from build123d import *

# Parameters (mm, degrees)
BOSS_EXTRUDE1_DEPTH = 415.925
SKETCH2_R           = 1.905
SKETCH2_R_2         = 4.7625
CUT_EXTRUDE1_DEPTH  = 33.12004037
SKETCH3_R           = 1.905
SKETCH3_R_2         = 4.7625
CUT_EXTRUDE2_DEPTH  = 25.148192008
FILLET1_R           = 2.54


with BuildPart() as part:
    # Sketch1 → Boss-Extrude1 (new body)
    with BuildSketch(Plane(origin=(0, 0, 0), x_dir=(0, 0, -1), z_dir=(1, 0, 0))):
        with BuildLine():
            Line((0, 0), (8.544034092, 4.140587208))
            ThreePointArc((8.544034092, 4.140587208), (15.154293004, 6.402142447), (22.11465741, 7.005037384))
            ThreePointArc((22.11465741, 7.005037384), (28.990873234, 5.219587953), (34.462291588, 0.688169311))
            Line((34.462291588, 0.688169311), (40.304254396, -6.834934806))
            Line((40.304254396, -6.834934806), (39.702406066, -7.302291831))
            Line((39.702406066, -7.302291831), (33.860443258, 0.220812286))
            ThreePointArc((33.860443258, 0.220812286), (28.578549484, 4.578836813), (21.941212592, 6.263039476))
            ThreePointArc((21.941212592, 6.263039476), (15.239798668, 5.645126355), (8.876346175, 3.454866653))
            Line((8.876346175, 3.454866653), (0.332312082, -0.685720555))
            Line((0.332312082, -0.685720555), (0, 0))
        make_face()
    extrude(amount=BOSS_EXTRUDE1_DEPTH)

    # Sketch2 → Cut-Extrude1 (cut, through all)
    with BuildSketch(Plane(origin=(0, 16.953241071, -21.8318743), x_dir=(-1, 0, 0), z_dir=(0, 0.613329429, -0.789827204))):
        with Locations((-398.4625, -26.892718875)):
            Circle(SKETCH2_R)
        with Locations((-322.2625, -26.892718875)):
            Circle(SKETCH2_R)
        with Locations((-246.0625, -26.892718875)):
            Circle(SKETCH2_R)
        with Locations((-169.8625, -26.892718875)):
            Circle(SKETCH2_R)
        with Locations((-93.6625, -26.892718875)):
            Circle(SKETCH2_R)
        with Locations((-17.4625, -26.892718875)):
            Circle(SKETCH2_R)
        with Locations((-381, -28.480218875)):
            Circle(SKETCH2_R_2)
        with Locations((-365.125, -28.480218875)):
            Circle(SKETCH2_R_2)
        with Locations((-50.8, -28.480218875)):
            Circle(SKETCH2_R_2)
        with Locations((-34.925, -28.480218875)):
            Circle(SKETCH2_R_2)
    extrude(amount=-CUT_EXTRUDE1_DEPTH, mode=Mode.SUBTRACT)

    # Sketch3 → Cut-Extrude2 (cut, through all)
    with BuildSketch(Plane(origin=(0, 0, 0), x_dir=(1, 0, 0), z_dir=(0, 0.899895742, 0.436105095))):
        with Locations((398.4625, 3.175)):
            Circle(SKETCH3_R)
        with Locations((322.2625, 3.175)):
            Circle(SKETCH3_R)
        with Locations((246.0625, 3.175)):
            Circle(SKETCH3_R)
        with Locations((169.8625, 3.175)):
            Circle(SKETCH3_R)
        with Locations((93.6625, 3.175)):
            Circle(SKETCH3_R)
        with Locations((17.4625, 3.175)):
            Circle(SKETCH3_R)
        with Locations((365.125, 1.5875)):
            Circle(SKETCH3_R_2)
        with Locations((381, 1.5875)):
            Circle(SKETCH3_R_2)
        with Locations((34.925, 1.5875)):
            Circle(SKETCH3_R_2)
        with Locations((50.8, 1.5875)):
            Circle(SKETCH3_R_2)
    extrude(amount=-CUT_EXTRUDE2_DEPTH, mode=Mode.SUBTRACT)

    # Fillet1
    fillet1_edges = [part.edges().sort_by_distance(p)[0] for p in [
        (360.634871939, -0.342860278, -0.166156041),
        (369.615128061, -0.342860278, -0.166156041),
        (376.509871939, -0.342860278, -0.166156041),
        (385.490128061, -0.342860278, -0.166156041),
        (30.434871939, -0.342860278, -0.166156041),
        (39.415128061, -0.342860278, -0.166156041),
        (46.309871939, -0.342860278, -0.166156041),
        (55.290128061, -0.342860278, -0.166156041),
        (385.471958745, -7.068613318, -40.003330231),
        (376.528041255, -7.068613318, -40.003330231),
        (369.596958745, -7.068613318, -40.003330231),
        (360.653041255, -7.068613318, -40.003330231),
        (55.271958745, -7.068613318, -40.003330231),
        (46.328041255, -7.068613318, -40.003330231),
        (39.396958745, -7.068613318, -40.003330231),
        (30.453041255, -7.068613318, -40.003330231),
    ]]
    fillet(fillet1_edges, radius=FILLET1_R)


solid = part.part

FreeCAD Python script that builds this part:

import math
import FreeCAD as App
import Part
import Sketcher
from FreeCAD import Vector
Q = App.Units.Quantity


def edges_at(feature, points):
    """Names of the edges that pass closest to the given points."""
    edges = feature.Shape.Edges
    near = lambda p: min(range(len(edges)), key=lambda i: edges[i].distToShape(Part.Vertex(*p))[0])
    return sorted({f"Edge{near(p) + 1}" for p in points})

doc = App.newDocument("Part")
body = doc.addObject("PartDesign::Body", "Body")

sketch1 = body.newObject("Sketcher::SketchObject", "Sketch")
sketch1.AttachmentSupport = (doc.getObject("YZ_Plane"), [""])
sketch1.MapMode = "FlatFace"
sketch1.addGeometry(Part.LineSegment(Vector(4.140587, -8.544034, 0), Vector(0, 0, 0)), False)
sketch1.addGeometry(Part.LineSegment(Vector(0, 0, 0), Vector(-0.685721, -0.332312, 0)), False)
sketch1.addGeometry(Part.LineSegment(Vector(-0.685721, -0.332312, 0), Vector(3.454867, -8.876346, 0)), False)
sketch1.addGeometry(Part.ArcOfCircle(Part.Circle(Vector(-21.88745, -21.157673, 0), Vector(0, 0, 1), 28.161392), math.radians(-1.594358), math.radians(25.855634)), False)
sketch1.addGeometry(Part.ArcOfCircle(Part.Circle(Vector(-9.372858, -21.506003, 0), Vector(0, 0, 1), 15.641953), math.radians(-52.169366), math.radians(-1.594358)), False)
sketch1.addGeometry(Part.LineSegment(Vector(0.220812, -33.860443, 0), Vector(-7.302292, -39.702406, 0)), False)
sketch1.addGeometry(Part.LineSegment(Vector(-7.302292, -39.702406, 0), Vector(-6.834935, -40.304254, 0)), False)
sketch1.addGeometry(Part.LineSegment(Vector(-6.834935, -40.304254, 0), Vector(0.688169, -34.462292, 0)), False)
sketch1.addGeometry(Part.ArcOfCircle(Part.Circle(Vector(-9.34762, -21.538504, 0), Vector(0, 0, 1), 16.362804), math.radians(-52.169366), math.radians(-2.017869)), False)
sketch1.addGeometry(Part.ArcOfCircle(Part.Circle(Vector(-21.770138, -21.100821, 0), Vector(0, 0, 1), 28.79303), math.radians(-2.017869), math.radians(25.855634)), False)
sketch1.addConstraint(Sketcher.Constraint("Coincident", 0, 2, 1, 1))
sketch1.addConstraint(Sketcher.Constraint("Coincident", 1, 2, 2, 1))
sketch1.addConstraint(Sketcher.Constraint("Tangent", 2, 2, 3, 2))
sketch1.addConstraint(Sketcher.Constraint("Tangent", 3, 1, 4, 2))
sketch1.addConstraint(Sketcher.Constraint("Tangent", 4, 1, 5, 1))
sketch1.addConstraint(Sketcher.Constraint("Coincident", 5, 2, 6, 1))
sketch1.addConstraint(Sketcher.Constraint("Coincident", 6, 2, 7, 1))
sketch1.addConstraint(Sketcher.Constraint("Tangent", 7, 2, 8, 1))
sketch1.addConstraint(Sketcher.Constraint("Tangent", 8, 2, 9, 1))
sketch1.addConstraint(Sketcher.Constraint("Tangent", 9, 2, 0, 1))
sketch1.addConstraint(Sketcher.Constraint("Coincident", 0, 2, -1, 1))
sketch1.addConstraint(Sketcher.Constraint("Perpendicular", 0, 1))
sketch1.addConstraint(Sketcher.Constraint("Perpendicular", 1, 2))
sketch1.addConstraint(Sketcher.Constraint("Perpendicular", 5, 6))
sketch1.addConstraint(Sketcher.Constraint("Perpendicular", 6, 7))
sketch1.addConstraint(Sketcher.Constraint("Equal", 0, 2))
sketch1.addConstraint(Sketcher.Constraint("Equal", 1, 6))
sketch1.addConstraint(Sketcher.Constraint("Equal", 5, 7))
sketch1.addConstraint(Sketcher.Constraint("Distance", 1, Q("0.03 in")))
sketch1.addConstraint(Sketcher.Constraint("Distance", 5, Q("0.375 in")))
sketch1.addConstraint(Sketcher.Constraint("Radius", 3, 28.161392))
sketch1.addConstraint(Sketcher.Constraint("Radius", 9, 28.79303))
sketch1.addConstraint(Sketcher.Constraint("Radius", 4, 15.641953))
sketch1.addConstraint(Sketcher.Constraint("Radius", 8, 16.362804))
sketch1.addConstraint(Sketcher.Constraint("DistanceX", 5, 2, 6, 2, Q("0.0183999 in")))
sketch1.addConstraint(Sketcher.Constraint("DistanceX", 8, 3, 1, 2, 8.661899))
sketch1.addConstraint(Sketcher.Constraint("DistanceY", 3, 1, 1, 2, 21.608901))
pad1 = body.newObject("PartDesign::Pad", "Pad")
pad1.Profile = sketch1
pad1.Length = Q("16.375 in")

sketch2 = body.newObject("Sketcher::SketchObject", "Sketch001")
sketch2.Placement = App.Placement(Vector(0, 16.953241, -21.831874), App.Rotation(Vector(-1, 0, 0), Vector(0, 0.789827204, 0.613329429), Vector(0, 0.613329429, -0.789827204), "ZXY"))
sketch2.addGeometry(Part.Circle(Vector(-398.4625, -26.892719, 0), Vector(0, 0, 1), 1.905), False)
sketch2.addGeometry(Part.Circle(Vector(-322.2625, -26.892719, 0), Vector(0, 0, 1), 1.905), False)
sketch2.addGeometry(Part.Circle(Vector(-246.0625, -26.892719, 0), Vector(0, 0, 1), 1.905), False)
sketch2.addGeometry(Part.Circle(Vector(-169.8625, -26.892719, 0), Vector(0, 0, 1), 1.905), False)
sketch2.addGeometry(Part.Circle(Vector(-93.6625, -26.892719, 0), Vector(0, 0, 1), 1.905), False)
sketch2.addGeometry(Part.Circle(Vector(-17.4625, -26.892719, 0), Vector(0, 0, 1), 1.905), False)
sketch2.addGeometry(Part.Circle(Vector(-381, -28.480219, 0), Vector(0, 0, 1), 4.7625), False)
sketch2.addGeometry(Part.Circle(Vector(-365.125, -28.480219, 0), Vector(0, 0, 1), 4.7625), False)
sketch2.addGeometry(Part.Circle(Vector(-50.8, -28.480219, 0), Vector(0, 0, 1), 4.7625), False)
sketch2.addGeometry(Part.Circle(Vector(-34.925, -28.480219, 0), Vector(0, 0, 1), 4.7625), False)
sketch2.addConstraint(Sketcher.Constraint("Equal", 0, 1))
sketch2.addConstraint(Sketcher.Constraint("Equal", 1, 2))
sketch2.addConstraint(Sketcher.Constraint("Equal", 2, 3))
sketch2.addConstraint(Sketcher.Constraint("Equal", 3, 4))
sketch2.addConstraint(Sketcher.Constraint("Equal", 4, 5))
sketch2.addConstraint(Sketcher.Constraint("Equal", 6, 7))
sketch2.addConstraint(Sketcher.Constraint("Equal", 7, 8))
sketch2.addConstraint(Sketcher.Constraint("Equal", 8, 9))
sketch2.addConstraint(Sketcher.Constraint("Horizontal", 0, 3, 1, 3))
sketch2.addConstraint(Sketcher.Constraint("Horizontal", 1, 3, 2, 3))
sketch2.addConstraint(Sketcher.Constraint("Horizontal", 2, 3, 3, 3))
sketch2.addConstraint(Sketcher.Constraint("Horizontal", 3, 3, 4, 3))
sketch2.addConstraint(Sketcher.Constraint("Horizontal", 4, 3, 5, 3))
sketch2.addConstraint(Sketcher.Constraint("Horizontal", 6, 3, 7, 3))
sketch2.addConstraint(Sketcher.Constraint("Horizontal", 7, 3, 8, 3))
sketch2.addConstraint(Sketcher.Constraint("Horizontal", 8, 3, 9, 3))
sketch2.addConstraint(Sketcher.Constraint("Diameter", 0, Q("0.15 in")))
sketch2.addConstraint(Sketcher.Constraint("Diameter", 6, Q("0.375 in")))
sketch2.addConstraint(Sketcher.Constraint("DistanceX", 6, 3, -1, 1, Q("15 in")))
sketch2.addConstraint(Sketcher.Constraint("DistanceX", 8, 3, -1, 1, Q("2 in")))
sketch2.addConstraint(Sketcher.Constraint("DistanceX", 0, 3, 1, 3, Q("3 in")))
sketch2.addConstraint(Sketcher.Constraint("DistanceX", 1, 3, 2, 3, Q("3 in")))
sketch2.addConstraint(Sketcher.Constraint("DistanceX", 2, 3, 3, 3, Q("3 in")))
sketch2.addConstraint(Sketcher.Constraint("DistanceX", 3, 3, 4, 3, Q("3 in")))
sketch2.addConstraint(Sketcher.Constraint("DistanceX", 4, 3, 5, 3, Q("3 in")))
sketch2.addConstraint(Sketcher.Constraint("DistanceX", 0, 3, -1, 1, Q("15.6875 in")))
sketch2.addConstraint(Sketcher.Constraint("DistanceX", 7, 3, -1, 1, Q("14.375 in")))
sketch2.addConstraint(Sketcher.Constraint("DistanceX", 9, 3, -1, 1, Q("1.375 in")))
sketch2.addConstraint(Sketcher.Constraint("DistanceY", 6, 3, 0, 3, Q("0.0625 in")))
sketch2.addConstraint(Sketcher.Constraint("DistanceY", 0, 3, -1, 1, 26.892719))
pocket1 = body.newObject("PartDesign::Pocket", "Pocket")
pocket1.Profile = sketch2
pocket1.Type = "ThroughAll"

sketch3 = body.newObject("Sketcher::SketchObject", "Sketch002")
sketch3.Placement = App.Placement(Vector(0, 0, 0), App.Rotation(Vector(1, 0, 0), Vector(0, 0.436105095, -0.899895742), Vector(0, 0.899895742, 0.436105095), "ZXY"))
sketch3.addGeometry(Part.Circle(Vector(398.4625, 3.175, 0), Vector(0, 0, 1), 1.905), False)
sketch3.addGeometry(Part.Circle(Vector(322.2625, 3.175, 0), Vector(0, 0, 1), 1.905), False)
sketch3.addGeometry(Part.Circle(Vector(246.0625, 3.175, 0), Vector(0, 0, 1), 1.905), False)
sketch3.addGeometry(Part.Circle(Vector(169.8625, 3.175, 0), Vector(0, 0, 1), 1.905), False)
sketch3.addGeometry(Part.Circle(Vector(93.6625, 3.175, 0), Vector(0, 0, 1), 1.905), False)
sketch3.addGeometry(Part.Circle(Vector(17.4625, 3.175, 0), Vector(0, 0, 1), 1.905), False)
sketch3.addGeometry(Part.Circle(Vector(365.125, 1.5875, 0), Vector(0, 0, 1), 4.7625), False)
sketch3.addGeometry(Part.Circle(Vector(381, 1.5875, 0), Vector(0, 0, 1), 4.7625), False)
sketch3.addGeometry(Part.Circle(Vector(34.925, 1.5875, 0), Vector(0, 0, 1), 4.7625), False)
sketch3.addGeometry(Part.Circle(Vector(50.8, 1.5875, 0), Vector(0, 0, 1), 4.7625), False)
sketch3.addConstraint(Sketcher.Constraint("Equal", 0, 1))
sketch3.addConstraint(Sketcher.Constraint("Equal", 1, 2))
sketch3.addConstraint(Sketcher.Constraint("Equal", 2, 3))
sketch3.addConstraint(Sketcher.Constraint("Equal", 3, 4))
sketch3.addConstraint(Sketcher.Constraint("Equal", 4, 5))
sketch3.addConstraint(Sketcher.Constraint("Equal", 6, 7))
sketch3.addConstraint(Sketcher.Constraint("Equal", 7, 8))
sketch3.addConstraint(Sketcher.Constraint("Equal", 8, 9))
sketch3.addConstraint(Sketcher.Constraint("Horizontal", 0, 3, 1, 3))
sketch3.addConstraint(Sketcher.Constraint("Horizontal", 1, 3, 2, 3))
sketch3.addConstraint(Sketcher.Constraint("Horizontal", 2, 3, 3, 3))
sketch3.addConstraint(Sketcher.Constraint("Horizontal", 3, 3, 4, 3))
sketch3.addConstraint(Sketcher.Constraint("Horizontal", 4, 3, 5, 3))
sketch3.addConstraint(Sketcher.Constraint("Horizontal", 6, 3, 7, 3))
sketch3.addConstraint(Sketcher.Constraint("Horizontal", 7, 3, 8, 3))
sketch3.addConstraint(Sketcher.Constraint("Horizontal", 8, 3, 9, 3))
sketch3.addConstraint(Sketcher.Constraint("Diameter", 0, Q("0.15 in")))
sketch3.addConstraint(Sketcher.Constraint("Diameter", 6, Q("0.375 in")))
sketch3.addConstraint(Sketcher.Constraint("DistanceX", -1, 1, 7, 3, Q("15 in")))
sketch3.addConstraint(Sketcher.Constraint("DistanceX", -1, 1, 9, 3, Q("2 in")))
sketch3.addConstraint(Sketcher.Constraint("DistanceX", 1, 3, 0, 3, Q("3 in")))
sketch3.addConstraint(Sketcher.Constraint("DistanceX", 2, 3, 1, 3, Q("3 in")))
sketch3.addConstraint(Sketcher.Constraint("DistanceX", 3, 3, 2, 3, Q("3 in")))
sketch3.addConstraint(Sketcher.Constraint("DistanceX", 4, 3, 3, 3, Q("3 in")))
sketch3.addConstraint(Sketcher.Constraint("DistanceX", 5, 3, 4, 3, Q("3 in")))
sketch3.addConstraint(Sketcher.Constraint("DistanceX", -1, 1, 0, 3, Q("15.6875 in")))
sketch3.addConstraint(Sketcher.Constraint("DistanceY", -1, 1, 0, 3, Q("0.125 in")))
sketch3.addConstraint(Sketcher.Constraint("DistanceX", -1, 1, 6, 3, Q("14.375 in")))
sketch3.addConstraint(Sketcher.Constraint("DistanceY", -1, 1, 6, 3, Q("0.0625 in")))
sketch3.addConstraint(Sketcher.Constraint("DistanceX", -1, 1, 8, 3, Q("1.375 in")))
pocket2 = body.newObject("PartDesign::Pocket", "Pocket001")
pocket2.Profile = sketch3
pocket2.Type = "ThroughAll"
doc.recompute()

fillet = body.newObject("PartDesign::Fillet", "Fillet")
fillet.Base = (pocket2, edges_at(pocket2, [
    (360.635, -0.343, -0.166),
    (369.615, -0.343, -0.166),
    (376.51, -0.343, -0.166),
    (385.49, -0.343, -0.166),
    (30.435, -0.343, -0.166),
    (39.415, -0.343, -0.166),
    (46.31, -0.343, -0.166),
    (55.29, -0.343, -0.166),
    (385.472, -7.069, -40.003),
    (376.528, -7.069, -40.003),
    (369.597, -7.069, -40.003),
    (360.653, -7.069, -40.003),
    (55.272, -7.069, -40.003),
    (46.328, -7.069, -40.003),
    (39.397, -7.069, -40.003),
    (30.453, -7.069, -40.003),
]))
fillet.Radius = Q("0.1 in")

doc.recompute()
